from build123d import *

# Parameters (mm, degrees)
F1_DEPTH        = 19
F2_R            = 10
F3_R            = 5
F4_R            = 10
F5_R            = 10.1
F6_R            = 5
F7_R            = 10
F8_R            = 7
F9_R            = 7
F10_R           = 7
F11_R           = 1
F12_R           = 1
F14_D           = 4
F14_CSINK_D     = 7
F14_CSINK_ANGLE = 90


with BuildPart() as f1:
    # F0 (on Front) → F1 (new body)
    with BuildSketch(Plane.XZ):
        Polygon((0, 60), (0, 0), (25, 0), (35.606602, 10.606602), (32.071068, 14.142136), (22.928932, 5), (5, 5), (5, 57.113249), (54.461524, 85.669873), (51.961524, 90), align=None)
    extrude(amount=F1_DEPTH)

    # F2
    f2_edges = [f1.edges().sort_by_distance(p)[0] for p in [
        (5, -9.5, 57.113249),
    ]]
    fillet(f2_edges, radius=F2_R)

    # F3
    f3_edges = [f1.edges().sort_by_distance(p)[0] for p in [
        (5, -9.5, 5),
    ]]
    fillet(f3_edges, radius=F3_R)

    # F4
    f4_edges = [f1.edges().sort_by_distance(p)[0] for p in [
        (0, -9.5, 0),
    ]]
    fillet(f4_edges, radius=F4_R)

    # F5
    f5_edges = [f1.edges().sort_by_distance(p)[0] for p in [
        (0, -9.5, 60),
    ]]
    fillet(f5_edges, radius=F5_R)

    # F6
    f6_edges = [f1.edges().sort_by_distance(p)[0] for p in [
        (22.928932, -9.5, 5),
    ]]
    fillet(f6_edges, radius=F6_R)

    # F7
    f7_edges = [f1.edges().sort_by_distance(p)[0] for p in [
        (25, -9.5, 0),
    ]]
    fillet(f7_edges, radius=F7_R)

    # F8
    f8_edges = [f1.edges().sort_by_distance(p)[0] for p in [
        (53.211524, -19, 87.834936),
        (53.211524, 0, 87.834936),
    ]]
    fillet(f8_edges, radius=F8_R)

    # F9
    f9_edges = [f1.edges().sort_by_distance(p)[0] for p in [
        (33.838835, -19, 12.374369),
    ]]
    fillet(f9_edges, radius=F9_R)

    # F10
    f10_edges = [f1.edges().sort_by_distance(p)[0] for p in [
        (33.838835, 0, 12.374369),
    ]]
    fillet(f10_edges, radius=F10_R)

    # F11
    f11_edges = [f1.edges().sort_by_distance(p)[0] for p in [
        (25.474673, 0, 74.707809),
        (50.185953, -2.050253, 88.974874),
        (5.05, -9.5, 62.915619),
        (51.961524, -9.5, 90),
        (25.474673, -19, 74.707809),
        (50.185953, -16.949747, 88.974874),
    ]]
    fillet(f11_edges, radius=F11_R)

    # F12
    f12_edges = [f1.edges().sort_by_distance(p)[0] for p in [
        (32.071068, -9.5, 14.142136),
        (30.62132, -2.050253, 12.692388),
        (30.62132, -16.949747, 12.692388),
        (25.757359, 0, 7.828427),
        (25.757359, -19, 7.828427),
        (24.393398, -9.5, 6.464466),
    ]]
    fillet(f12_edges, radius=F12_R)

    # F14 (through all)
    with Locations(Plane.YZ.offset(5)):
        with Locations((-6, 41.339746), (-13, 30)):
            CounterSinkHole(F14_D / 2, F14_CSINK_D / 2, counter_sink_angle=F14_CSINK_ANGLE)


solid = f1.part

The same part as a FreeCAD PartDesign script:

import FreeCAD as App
import Part
import Sketcher

V = App.Vector
Q = App.Units.Quantity


def edges_at(feature, points):
    """Names of the edges that pass closest to the given points."""
    edges = feature.Shape.Edges
    near = lambda p: min(range(len(edges)), key=lambda i: edges[i].distToShape(Part.Vertex(*p))[0])
    return sorted({f"Edge{near(p) + 1}" for p in points})

doc = App.newDocument("Part")
body = doc.addObject("PartDesign::Body", "Body")

# Sketch on XZ plane
sketch1 = doc.addObject("Sketcher::SketchObject", "Sketch")
body.addObject(sketch1)
sketch1.AttachmentSupport = (doc.XZ_Plane, [""])
sketch1.MapMode = "FlatFace"
sketch1.addGeometry([
    Part.LineSegment(V(0, 60, 0), V(0, 0, 0)),  # 0
    Part.LineSegment(V(0, 0, 0), V(25, 0, 0)),  # 1
    Part.LineSegment(V(25, 0, 0), V(35.6, 10.6, 0)),  # 2
    Part.LineSegment(V(35.6, 10.6, 0), V(32.1, 14.1, 0)),  # 3
    Part.LineSegment(V(32.1, 14.1, 0), V(22.9, 5, 0)),  # 4
    Part.LineSegment(V(22.9, 5, 0), V(5, 5, 0)),  # 5
    Part.LineSegment(V(5, 5, 0), V(5, 57.1, 0)),  # 6
    Part.LineSegment(V(5, 57.1, 0), V(54.5, 85.7, 0)),  # 7
    Part.LineSegment(V(54.5, 85.7, 0), V(52, 90, 0)),  # 8
    Part.LineSegment(V(52, 90, 0), V(0, 60, 0)),  # 9
], False)
sketch1.addConstraint([
    Sketcher.Constraint("Coincident", 0, 2, 1, 1),
    Sketcher.Constraint("Coincident", 1, 2, 2, 1),
    Sketcher.Constraint("Coincident", 2, 2, 3, 1),
    Sketcher.Constraint("Coincident", 3, 2, 4, 1),
    Sketcher.Constraint("Coincident", 4, 2, 5, 1),
    Sketcher.Constraint("Coincident", 5, 2, 6, 1),
    Sketcher.Constraint("Coincident", 6, 2, 7, 1),
    Sketcher.Constraint("Coincident", 7, 2, 8, 1),
    Sketcher.Constraint("Coincident", 8, 2, 9, 1),
    Sketcher.Constraint("Coincident", 9, 2, 0, 1),
    Sketcher.Constraint("Vertical", 0),
    Sketcher.Constraint("Horizontal", 1),
    Sketcher.Constraint("Horizontal", 5),
    Sketcher.Constraint("Vertical", 6),
    Sketcher.Constraint("Coincident", 0, 2, -1, 1),
    Sketcher.Constraint("Perpendicular", 2, 3),
    Sketcher.Constraint("Perpendicular", 3, 4),
    Sketcher.Constraint("Perpendicular", 7, 8),
    Sketcher.Constraint("Perpendicular", 8, 9),
    Sketcher.Constraint("Equal", 3, 8),
    Sketcher.Constraint("DistanceX", 1, 1, 1, 2, Q("25 mm")),
    Sketcher.Constraint("DistanceY", 0, 2, 0, 1, Q("60 mm")),
    Sketcher.Constraint("Angle", 2, Q("45 deg")),
    Sketcher.Constraint("Angle", 7, Q("30 deg")),
    Sketcher.Constraint("Distance", 2, Q("15 mm")),
    Sketcher.Constraint("Distance", 3, Q("5 mm")),
    Sketcher.Constraint("Distance", 9, Q("60 mm")),
    Sketcher.Constraint("DistanceY", -1, 1, 4, 2, Q("5 mm")),
    Sketcher.Constraint("DistanceX", -1, 1, 5, 2, Q("5 mm")),
])
pad1 = doc.addObject("PartDesign::Pad", "Pad")
body.addObject(pad1)
pad1.Profile = sketch1
pad1.Length = 19
doc.recompute()

fillet = doc.addObject("PartDesign::Fillet", "Fillet")
body.addObject(fillet)
fillet.Base = (pad1, edges_at(pad1, [(5, -9.5, 57.113)]))
fillet.Radius = 10
doc.recompute()

fillet2 = doc.addObject("PartDesign::Fillet", "Fillet001")
body.addObject(fillet2)
fillet2.Base = (fillet, edges_at(fillet, [(5, -9.5, 5)]))
fillet2.Radius = 5
doc.recompute()

fillet3 = doc.addObject("PartDesign::Fillet", "Fillet002")
body.addObject(fillet3)
fillet3.Base = (fillet2, edges_at(fillet2, [(0, -9.5, 0)]))
fillet3.Radius = 10
doc.recompute()

fillet4 = doc.addObject("PartDesign::Fillet", "Fillet003")
body.addObject(fillet4)
fillet4.Base = (fillet3, edges_at(fillet3, [(0, -9.5, 60)]))
fillet4.Radius = 10.1
doc.recompute()

fillet5 = doc.addObject("PartDesign::Fillet", "Fillet004")
body.addObject(fillet5)
fillet5.Base = (fillet4, edges_at(fillet4, [(22.929, -9.5, 5)]))
fillet5.Radius = 5
doc.recompute()

fillet6 = doc.addObject("PartDesign::Fillet", "Fillet005")
body.addObject(fillet6)
fillet6.Base = (fillet5, edges_at(fillet5, [(25, -9.5, 0)]))
fillet6.Radius = 10
doc.recompute()

fillet7 = doc.addObject("PartDesign::Fillet", "Fillet006")
body.addObject(fillet7)
fillet7.Base = (fillet6, edges_at(fillet6, [(53.212, -19, 87.835), (53.212, 0, 87.835)]))
fillet7.Radius = 7
doc.recompute()

fillet8 = doc.addObject("PartDesign::Fillet", "Fillet007")
body.addObject(fillet8)
fillet8.Base = (fillet7, edges_at(fillet7, [(33.839, -19, 12.374)]))
fillet8.Radius = 7
doc.recompute()

fillet9 = doc.addObject("PartDesign::Fillet", "Fillet008")
body.addObject(fillet9)
fillet9.Base = (fillet8, edges_at(fillet8, [(33.839, 0, 12.374)]))
fillet9.Radius = 7
doc.recompute()

fillet10 = doc.addObject("PartDesign::Fillet", "Fillet009")
body.addObject(fillet10)
fillet10.Base = (fillet9, edges_at(fillet9, [
    (25.475, 0, 74.708),
    (50.186, -2.05, 88.975),
    (5.05, -9.5, 62.916),
    (51.962, -9.5, 90),
    (25.475, -19, 74.708),
    (50.186, -16.95, 88.975),
]))
fillet10.Radius = 1
doc.recompute()

fillet11 = doc.addObject("PartDesign::Fillet", "Fillet010")
body.addObject(fillet11)
fillet11.Base = (fillet10, edges_at(fillet10, [
    (32.071, -9.5, 14.142),
    (30.621, -2.05, 12.692),
    (30.621, -16.95, 12.692),
    (25.757, 0, 7.828),
    (25.757, -19, 7.828),
    (24.393, -9.5, 6.464),
]))
fillet11.Radius = 1

# Sketch on YZ plane
sketch2 = doc.addObject("Sketcher::SketchObject", "Sketch001")
body.addObject(sketch2)
sketch2.AttachmentSupport = (doc.YZ_Plane, [""])
sketch2.MapMode = "FlatFace"
sketch2.AttachmentOffset = App.Placement(V(0, 0, 5), App.Rotation())
sketch2.addGeometry([
    Part.Circle(V(-6, 41.3, 0), V(0, 0, 1), 2),
    Part.Circle(V(-13, 30, 0), V(0, 0, 1), 2),
], False)
sketch2.addConstraint([
    Sketcher.Constraint("Equal", 0, 1),
    Sketcher.Constraint("Diameter", 0, Q("4 mm")),
    Sketcher.Constraint("DistanceX", 0, 3, -1, 1, Q("6 mm")),
    Sketcher.Constraint("DistanceX", 1, 3, -1, 1, Q("13 mm")),
    Sketcher.Constraint("DistanceY", -1, 1, 1, 3, Q("30 mm")),
    Sketcher.Constraint("DistanceY", -1, 1, 0, 3, Q("41.339746 mm")),
])
doc.recompute()
hole = doc.addObject("PartDesign::Hole", "Hole")
body.addObject(hole)
hole.Profile = sketch2
hole.ThreadType = "None"
hole.Diameter = 4
hole.DepthType = "ThroughAll"
hole.HoleCutType = "Countersink"
hole.HoleCutDiameter = 7
hole.HoleCutCountersinkAngle = 90

doc.recompute()
